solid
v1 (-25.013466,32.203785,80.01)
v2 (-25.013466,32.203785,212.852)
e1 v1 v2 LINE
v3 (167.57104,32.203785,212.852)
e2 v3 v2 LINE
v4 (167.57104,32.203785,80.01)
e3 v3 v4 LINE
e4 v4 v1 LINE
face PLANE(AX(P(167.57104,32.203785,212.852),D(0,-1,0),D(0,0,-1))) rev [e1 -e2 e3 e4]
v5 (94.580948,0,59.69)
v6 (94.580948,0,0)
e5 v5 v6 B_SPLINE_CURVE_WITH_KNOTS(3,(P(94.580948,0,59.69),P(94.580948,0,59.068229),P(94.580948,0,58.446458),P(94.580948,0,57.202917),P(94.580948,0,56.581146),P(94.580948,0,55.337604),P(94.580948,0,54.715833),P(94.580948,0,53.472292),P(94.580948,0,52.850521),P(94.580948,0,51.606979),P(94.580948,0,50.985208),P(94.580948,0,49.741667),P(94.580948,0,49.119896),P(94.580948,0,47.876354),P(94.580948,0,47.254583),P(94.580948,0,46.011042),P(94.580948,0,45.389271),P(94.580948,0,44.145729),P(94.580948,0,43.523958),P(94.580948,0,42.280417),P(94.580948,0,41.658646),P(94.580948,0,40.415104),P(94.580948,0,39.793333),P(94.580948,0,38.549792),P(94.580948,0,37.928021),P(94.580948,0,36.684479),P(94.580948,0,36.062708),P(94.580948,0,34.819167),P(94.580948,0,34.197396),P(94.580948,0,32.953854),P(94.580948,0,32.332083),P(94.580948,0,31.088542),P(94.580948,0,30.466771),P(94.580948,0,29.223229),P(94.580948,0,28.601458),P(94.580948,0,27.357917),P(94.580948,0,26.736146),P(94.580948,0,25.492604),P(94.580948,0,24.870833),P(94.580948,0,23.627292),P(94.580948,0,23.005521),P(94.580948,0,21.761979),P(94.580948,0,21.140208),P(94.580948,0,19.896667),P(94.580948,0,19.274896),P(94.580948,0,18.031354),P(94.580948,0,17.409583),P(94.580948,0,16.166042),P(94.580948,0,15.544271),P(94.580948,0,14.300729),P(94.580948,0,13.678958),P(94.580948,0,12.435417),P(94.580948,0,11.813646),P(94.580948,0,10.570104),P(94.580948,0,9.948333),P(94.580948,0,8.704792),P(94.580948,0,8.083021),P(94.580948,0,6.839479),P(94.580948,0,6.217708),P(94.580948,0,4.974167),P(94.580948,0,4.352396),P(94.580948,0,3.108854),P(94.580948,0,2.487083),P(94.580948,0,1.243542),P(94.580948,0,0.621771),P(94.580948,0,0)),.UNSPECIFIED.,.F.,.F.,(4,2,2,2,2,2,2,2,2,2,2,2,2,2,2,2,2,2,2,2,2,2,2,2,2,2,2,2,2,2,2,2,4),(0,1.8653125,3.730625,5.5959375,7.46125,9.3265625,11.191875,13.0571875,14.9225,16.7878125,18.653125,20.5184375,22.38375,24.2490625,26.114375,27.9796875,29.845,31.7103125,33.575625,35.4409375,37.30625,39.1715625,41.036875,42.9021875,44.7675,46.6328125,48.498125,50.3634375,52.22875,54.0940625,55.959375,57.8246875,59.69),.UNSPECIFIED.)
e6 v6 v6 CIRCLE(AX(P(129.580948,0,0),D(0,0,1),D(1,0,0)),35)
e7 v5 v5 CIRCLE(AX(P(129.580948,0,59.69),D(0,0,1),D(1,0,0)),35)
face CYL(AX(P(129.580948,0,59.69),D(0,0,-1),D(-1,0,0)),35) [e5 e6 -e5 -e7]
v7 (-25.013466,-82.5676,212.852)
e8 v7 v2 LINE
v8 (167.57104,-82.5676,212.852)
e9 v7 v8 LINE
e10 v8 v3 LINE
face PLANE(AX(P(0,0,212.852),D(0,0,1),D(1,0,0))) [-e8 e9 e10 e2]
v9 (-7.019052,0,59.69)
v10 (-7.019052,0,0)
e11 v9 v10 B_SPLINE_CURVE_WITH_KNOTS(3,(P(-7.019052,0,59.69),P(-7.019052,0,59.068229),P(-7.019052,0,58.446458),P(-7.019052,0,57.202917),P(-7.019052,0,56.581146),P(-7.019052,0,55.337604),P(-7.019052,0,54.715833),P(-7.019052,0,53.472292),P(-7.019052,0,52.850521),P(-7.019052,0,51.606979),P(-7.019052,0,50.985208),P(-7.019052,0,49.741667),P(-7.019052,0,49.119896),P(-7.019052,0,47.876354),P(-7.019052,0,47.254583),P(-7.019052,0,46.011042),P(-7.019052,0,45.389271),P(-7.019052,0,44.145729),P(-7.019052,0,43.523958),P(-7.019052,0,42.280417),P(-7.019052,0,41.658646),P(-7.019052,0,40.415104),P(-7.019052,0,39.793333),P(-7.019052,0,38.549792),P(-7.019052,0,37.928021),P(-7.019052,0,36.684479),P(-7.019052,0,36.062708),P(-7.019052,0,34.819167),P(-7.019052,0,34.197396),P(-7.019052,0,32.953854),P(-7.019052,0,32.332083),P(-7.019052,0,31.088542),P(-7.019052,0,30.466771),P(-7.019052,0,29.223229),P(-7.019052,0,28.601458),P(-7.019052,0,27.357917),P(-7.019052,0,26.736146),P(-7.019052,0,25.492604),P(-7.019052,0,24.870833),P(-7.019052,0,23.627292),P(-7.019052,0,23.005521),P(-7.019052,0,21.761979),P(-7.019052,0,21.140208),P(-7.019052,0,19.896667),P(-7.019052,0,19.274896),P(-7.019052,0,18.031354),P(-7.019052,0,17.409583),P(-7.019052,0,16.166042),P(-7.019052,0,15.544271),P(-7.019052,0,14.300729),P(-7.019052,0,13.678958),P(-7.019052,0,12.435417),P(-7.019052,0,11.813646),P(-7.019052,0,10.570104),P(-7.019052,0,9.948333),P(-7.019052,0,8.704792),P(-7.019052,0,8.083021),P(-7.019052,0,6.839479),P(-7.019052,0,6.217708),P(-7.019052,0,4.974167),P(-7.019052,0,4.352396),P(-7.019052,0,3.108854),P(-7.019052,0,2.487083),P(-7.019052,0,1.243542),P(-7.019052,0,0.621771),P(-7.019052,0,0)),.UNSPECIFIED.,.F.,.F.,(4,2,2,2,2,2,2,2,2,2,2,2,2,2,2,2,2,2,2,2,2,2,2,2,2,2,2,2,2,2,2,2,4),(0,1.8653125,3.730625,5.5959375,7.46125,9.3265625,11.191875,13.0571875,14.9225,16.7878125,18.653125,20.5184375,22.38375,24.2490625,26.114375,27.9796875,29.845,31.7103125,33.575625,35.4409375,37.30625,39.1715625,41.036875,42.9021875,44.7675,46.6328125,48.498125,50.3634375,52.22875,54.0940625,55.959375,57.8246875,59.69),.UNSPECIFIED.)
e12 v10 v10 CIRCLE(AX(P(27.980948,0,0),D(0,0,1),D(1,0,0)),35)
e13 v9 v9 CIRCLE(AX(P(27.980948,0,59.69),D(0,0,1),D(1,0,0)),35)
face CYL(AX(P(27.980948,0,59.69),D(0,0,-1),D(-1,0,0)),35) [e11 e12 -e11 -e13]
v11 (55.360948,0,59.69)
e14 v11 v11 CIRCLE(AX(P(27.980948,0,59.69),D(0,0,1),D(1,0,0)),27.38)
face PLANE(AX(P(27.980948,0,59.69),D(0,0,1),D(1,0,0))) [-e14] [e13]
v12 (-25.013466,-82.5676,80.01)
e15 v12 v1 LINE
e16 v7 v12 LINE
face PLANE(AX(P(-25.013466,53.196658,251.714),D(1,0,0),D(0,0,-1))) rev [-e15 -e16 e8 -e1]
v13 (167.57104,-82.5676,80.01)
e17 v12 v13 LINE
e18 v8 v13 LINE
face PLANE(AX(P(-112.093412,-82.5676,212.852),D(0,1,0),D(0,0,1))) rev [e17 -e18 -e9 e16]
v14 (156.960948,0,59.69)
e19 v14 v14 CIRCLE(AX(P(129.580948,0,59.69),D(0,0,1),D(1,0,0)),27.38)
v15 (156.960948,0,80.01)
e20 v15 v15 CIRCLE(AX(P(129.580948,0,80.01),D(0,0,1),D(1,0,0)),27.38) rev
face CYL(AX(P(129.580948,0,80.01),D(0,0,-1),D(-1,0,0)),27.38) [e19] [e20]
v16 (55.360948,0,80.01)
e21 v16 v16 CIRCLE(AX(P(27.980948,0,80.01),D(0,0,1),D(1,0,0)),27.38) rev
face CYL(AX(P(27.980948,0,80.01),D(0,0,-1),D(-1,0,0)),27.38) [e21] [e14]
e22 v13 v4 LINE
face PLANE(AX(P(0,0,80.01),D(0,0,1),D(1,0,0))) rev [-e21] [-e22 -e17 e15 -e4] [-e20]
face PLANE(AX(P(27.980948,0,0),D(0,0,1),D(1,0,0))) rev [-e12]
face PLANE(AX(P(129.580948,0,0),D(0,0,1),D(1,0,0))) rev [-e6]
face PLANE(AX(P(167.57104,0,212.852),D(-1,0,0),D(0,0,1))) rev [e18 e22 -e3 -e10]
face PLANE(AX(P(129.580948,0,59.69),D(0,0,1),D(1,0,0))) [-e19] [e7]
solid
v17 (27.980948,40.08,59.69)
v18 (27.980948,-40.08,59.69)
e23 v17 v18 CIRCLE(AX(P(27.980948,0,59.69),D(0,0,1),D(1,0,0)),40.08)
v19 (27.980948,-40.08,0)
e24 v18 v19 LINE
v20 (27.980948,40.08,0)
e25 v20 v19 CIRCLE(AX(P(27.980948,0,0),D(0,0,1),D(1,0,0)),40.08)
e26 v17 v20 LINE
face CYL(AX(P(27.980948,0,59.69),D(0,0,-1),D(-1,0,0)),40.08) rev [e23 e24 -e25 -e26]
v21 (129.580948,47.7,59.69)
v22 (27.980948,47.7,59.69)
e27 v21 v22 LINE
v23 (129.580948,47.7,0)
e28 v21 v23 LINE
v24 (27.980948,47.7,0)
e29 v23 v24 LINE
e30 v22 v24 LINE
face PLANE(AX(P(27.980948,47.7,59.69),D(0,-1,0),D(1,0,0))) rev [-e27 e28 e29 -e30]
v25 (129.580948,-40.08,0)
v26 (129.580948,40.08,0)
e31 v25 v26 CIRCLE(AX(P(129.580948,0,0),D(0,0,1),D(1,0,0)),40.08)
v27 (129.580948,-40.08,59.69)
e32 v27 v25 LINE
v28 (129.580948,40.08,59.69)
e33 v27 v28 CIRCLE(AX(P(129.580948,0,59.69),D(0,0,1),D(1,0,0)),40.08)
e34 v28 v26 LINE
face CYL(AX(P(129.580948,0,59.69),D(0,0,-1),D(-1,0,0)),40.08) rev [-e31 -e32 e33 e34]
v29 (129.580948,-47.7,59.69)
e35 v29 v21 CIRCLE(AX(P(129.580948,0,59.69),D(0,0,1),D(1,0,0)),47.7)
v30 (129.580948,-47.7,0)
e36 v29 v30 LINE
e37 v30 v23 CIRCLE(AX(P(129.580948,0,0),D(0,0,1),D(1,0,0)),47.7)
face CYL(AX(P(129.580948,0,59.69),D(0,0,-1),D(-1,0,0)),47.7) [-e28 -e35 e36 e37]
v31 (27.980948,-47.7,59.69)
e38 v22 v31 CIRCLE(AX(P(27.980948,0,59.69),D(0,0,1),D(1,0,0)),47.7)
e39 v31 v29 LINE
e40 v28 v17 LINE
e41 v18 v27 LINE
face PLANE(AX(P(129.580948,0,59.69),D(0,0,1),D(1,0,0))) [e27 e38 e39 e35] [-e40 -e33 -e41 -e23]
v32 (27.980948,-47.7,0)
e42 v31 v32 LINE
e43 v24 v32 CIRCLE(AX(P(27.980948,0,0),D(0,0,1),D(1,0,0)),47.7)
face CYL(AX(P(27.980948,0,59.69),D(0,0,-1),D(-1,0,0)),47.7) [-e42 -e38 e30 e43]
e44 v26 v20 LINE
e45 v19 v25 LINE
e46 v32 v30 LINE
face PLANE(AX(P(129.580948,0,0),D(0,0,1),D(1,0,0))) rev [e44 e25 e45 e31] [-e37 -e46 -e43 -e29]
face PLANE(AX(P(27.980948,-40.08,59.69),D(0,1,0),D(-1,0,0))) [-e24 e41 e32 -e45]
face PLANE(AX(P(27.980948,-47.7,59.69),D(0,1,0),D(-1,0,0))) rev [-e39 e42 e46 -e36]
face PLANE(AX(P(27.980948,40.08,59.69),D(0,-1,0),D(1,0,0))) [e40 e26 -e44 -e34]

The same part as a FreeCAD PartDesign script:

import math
import FreeCAD as App
import Part
import Sketcher
from FreeCAD import Vector
Q = App.Units.Quantity

doc = App.newDocument("Part")
body = doc.addObject("PartDesign::Body", "Body")

# Sketch on XY plane
sketch1 = body.newObject("Sketcher::SketchObject", "Sketch")
sketch1.AttachmentSupport = (doc.getObject("XY_Plane"), [""])
sketch1.MapMode = "FlatFace"
sketch1.addGeometry(Part.Circle(Vector(-74, 0, 0), Vector(0, 0, 1), 35), False)
sketch1.addConstraint([
    Sketcher.Constraint("PointOnObject", 0, 3, -1),
    Sketcher.Constraint("Diameter", 0, Q("70 mm")),
    Sketcher.Constraint("DistanceX", 0, 3, -1, 1, Q("73.619052 mm")),
])
pad1 = body.newObject("PartDesign::Pad", "Pad")
pad1.Profile = sketch1
pad1.Length = Q("2.35 in")
body2 = doc.addObject("PartDesign::Body", "Body001")

# Sketch on XY plane
sketch2 = body2.newObject("Sketcher::SketchObject", "Sketch001")
sketch2.AttachmentSupport = (doc.getObject("XY_Plane001"), [""])
sketch2.MapMode = "FlatFace"
sketch2.addGeometry(Part.Circle(Vector(28, 0, 0), Vector(0, 0, 1), 35), False)
sketch2.addConstraint([
    Sketcher.Constraint("PointOnObject", 0, 3, -1),
    Sketcher.Constraint("Diameter", 0, Q("70 mm")),
    Sketcher.Constraint("DistanceX", -1, 1, 0, 3, Q("27.980948 mm")),
])
pad2 = body2.newObject("PartDesign::Pad", "Pad001")
pad2.Profile = sketch2
pad2.Length = Q("2.35 in")
body3 = doc.addObject("PartDesign::Body", "Body002")

# Sketch on XY plane
sketch3 = body3.newObject("Sketcher::SketchObject", "Sketch002")
sketch3.AttachmentSupport = (doc.getObject("XY_Plane002"), [""])
sketch3.MapMode = "FlatFace"
sketch3.addGeometry(Part.Circle(Vector(130, 0, 0), Vector(0, 0, 1), 35), False)
sketch3.addConstraint([
    Sketcher.Constraint("PointOnObject", 0, 3, -1),
    Sketcher.Constraint("Diameter", 0, Q("70 mm")),
    Sketcher.Constraint("DistanceX", -1, 1, 0, 3, Q("129.580948 mm")),
])
pad3 = body3.newObject("PartDesign::Pad", "Pad002")
pad3.Profile = sketch3
pad3.Length = Q("2.35 in")
body4 = doc.addObject("PartDesign::Body", "Body003")

# Sketch on XY plane
sketch4 = body4.newObject("Sketcher::SketchObject", "Sketch003")
sketch4.AttachmentSupport = (doc.getObject("XY_Plane003"), [""])
sketch4.MapMode = "FlatFace"
sketch4.AttachmentOffset = App.Placement(Vector(0, 0, 1.175 * 25.4), App.Rotation())
sketch4.addGeometry([
    Part.LineSegment(Vector(130, 48, 0), Vector(28, 48, 0)),  # 0
    Part.ArcOfCircle(Part.Circle(Vector(28, 0, 0), Vector(0, 0, 1), 48), math.radians(90), math.radians(270)),  # 1
    Part.LineSegment(Vector(28, -48, 0), Vector(130, -48, 0)),  # 2
    Part.ArcOfCircle(Part.Circle(Vector(130, 0, 0), Vector(0, 0, 1), 48), math.radians(-90), math.radians(90)),  # 3
    Part.LineSegment(Vector(28, 40, 0), Vector(130, 40, 0)),  # 4
    Part.ArcOfCircle(Part.Circle(Vector(130, 0, 0), Vector(0, 0, 1), 40), math.radians(-90), math.radians(90)),  # 5
    Part.LineSegment(Vector(130, -40, 0), Vector(28, -40, 0)),  # 6
    Part.ArcOfCircle(Part.Circle(Vector(28, 0, 0), Vector(0, 0, 1), 40), math.radians(90), math.radians(270)),  # 7
], False)
sketch4.addConstraint([
    Sketcher.Constraint("Tangent", 0, 2, 1, 1),
    Sketcher.Constraint("Tangent", 1, 2, 2, 1),
    Sketcher.Constraint("Tangent", 2, 2, 3, 1),
    Sketcher.Constraint("Tangent", 3, 2, 0, 1),
    Sketcher.Constraint("Tangent", 4, 2, 5, 2),
    Sketcher.Constraint("Tangent", 5, 1, 6, 1),
    Sketcher.Constraint("Tangent", 6, 2, 7, 2),
    Sketcher.Constraint("Tangent", 7, 1, 4, 1),
    Sketcher.Constraint("Horizontal", 0),
    Sketcher.Constraint("Horizontal", 2),
    Sketcher.Constraint("Horizontal", 4),
    Sketcher.Constraint("Horizontal", 6),
    Sketcher.Constraint("Coincident", 5, 3, 3, 3),
    Sketcher.Constraint("PointOnObject", 1, 3, -1),
    Sketcher.Constraint("Vertical", 7, 3, 0, 2),
    Sketcher.Constraint("DistanceX", 0, 2, 0, 1, Q("4 in")),
    Sketcher.Constraint("DistanceY", 4, 2, 3, 2, Q("0.3 in")),
    Sketcher.Constraint("Radius", 1, Q("47.7 mm")),
    Sketcher.Constraint("DistanceX", -1, 1, 1, 3, Q("27.980948 mm")),
])
pad4 = body4.newObject("PartDesign::Pad", "Pad003")
pad4.Profile = sketch4
pad4.Length = Q("2.35 in")
pad4.Midplane = True
body.AllowCompound = True
doc.recompute()

boolean = body.newObject("PartDesign::Boolean", "Boolean")
boolean.Type = "Fuse"
boolean.addObjects([body2])
doc.recompute()

boolean2 = body.newObject("PartDesign::Boolean", "Boolean001")
boolean2.Type = "Fuse"
boolean2.addObjects([body3])

# Sketch on XY plane
sketch5 = body.newObject("Sketcher::SketchObject", "Sketch004")
sketch5.AttachmentSupport = (doc.getObject("XY_Plane"), [""])
sketch5.MapMode = "FlatFace"
sketch5.AttachmentOffset = App.Placement(Vector(0, 0, 2.35 * 25.4), App.Rotation())
sketch5.addGeometry([
    Part.Circle(Vector(130, 0, 0), Vector(0, 0, 1), 27),
    Part.Circle(Vector(-74, 0, 0), Vector(0, 0, 1), 27),
    Part.Circle(Vector(28, 0, 0), Vector(0, 0, 1), 27),
], False)
sketch5.addConstraint([
    Sketcher.Constraint("Equal", 0, 1),
    Sketcher.Constraint("Equal", 1, 2),
    Sketcher.Constraint("PointOnObject", 0, 3, -1),
    Sketcher.Constraint("PointOnObject", 1, 3, -1),
    Sketcher.Constraint("PointOnObject", 2, 3, -1),
    Sketcher.Constraint("DistanceX", 1, 3, 0, 3, Q("8 in")),
    Sketcher.Constraint("DistanceX", 1, 3, 2, 3, Q("4 in")),
    Sketcher.Constraint("Diameter", 0, Q("54.76 mm")),
    Sketcher.Constraint("DistanceX", -1, 1, 0, 3, Q("129.580948 mm")),
])
pad5 = body.newObject("PartDesign::Pad", "Pad004")
pad5.Profile = sketch5
pad5.Length = Q("0.8 in")

# Sketch on XY plane
sketch6 = body.newObject("Sketcher::SketchObject", "Sketch005")
sketch6.AttachmentSupport = (doc.getObject("XY_Plane"), [""])
sketch6.MapMode = "FlatFace"
sketch6.AttachmentOffset = App.Placement(Vector(0, 0, 3.15 * 25.4), App.Rotation())
sketch6.addGeometry([
    Part.LineSegment(Vector(-112, -83, 0), Vector(168, -83, 0)),
    Part.LineSegment(Vector(168, -83, 0), Vector(168, 32, 0)),
    Part.LineSegment(Vector(168, 32, 0), Vector(-112, 32, 0)),
    Part.LineSegment(Vector(-112, 32, 0), Vector(-112, -83, 0)),
], False)
sketch6.addConstraint([
    Sketcher.Constraint("Coincident", 0, 2, 1, 1),
    Sketcher.Constraint("Coincident", 1, 2, 2, 1),
    Sketcher.Constraint("Coincident", 2, 2, 3, 1),
    Sketcher.Constraint("Coincident", 3, 2, 0, 1),
    Sketcher.Constraint("Horizontal", 0),
    Sketcher.Constraint("Vertical", 1),
    Sketcher.Constraint("Horizontal", 2),
    Sketcher.Constraint("Vertical", 3),
    Sketcher.Constraint("DistanceX", 0, 1, 0, 2, Q("279.664452 mm")),
    Sketcher.Constraint("DistanceY", 0, 2, -1, 1, Q("82.5676 mm")),
    Sketcher.Constraint("DistanceY", 1, 1, 1, 2, Q("114.771385 mm")),
    Sketcher.Constraint("DistanceX", -1, 1, 0, 2, Q("167.57104 mm")),
])
pad6 = body.newObject("PartDesign::Pad", "Pad005")
pad6.Profile = sketch6
pad6.Length = Q("5.23 in")

# Sketch on XY plane
sketch7 = body.newObject("Sketcher::SketchObject", "Sketch006")
sketch7.AttachmentSupport = (doc.getObject("XY_Plane"), [""])
sketch7.MapMode = "FlatFace"
sketch7.addGeometry(Part.Circle(Vector(-74, 0, 0), Vector(0, 0, 1), 35), False)
sketch7.addConstraint([
    Sketcher.Constraint("PointOnObject", 0, 3, -1),
    Sketcher.Constraint("Diameter", 0, Q("70 mm")),
    Sketcher.Constraint("DistanceX", 0, 3, -1, 1, Q("73.619052 mm")),
])
pocket1 = body.newObject("PartDesign::Pocket", "Pocket")
pocket1.Profile = sketch7
pocket1.Length = Q("3.15 in")
pocket1.Reversed = True

# Sketch on XY plane
sketch8 = body.newObject("Sketcher::SketchObject", "Sketch007")
sketch8.AttachmentSupport = (doc.getObject("XY_Plane"), [""])
sketch8.MapMode = "FlatFace"
sketch8.AttachmentOffset = App.Placement(Vector(0, 0, 3.15 * 25.4), App.Rotation())
sketch8.addGeometry([
    Part.LineSegment(Vector(-25, 53, 0), Vector(-25, -112, 0)),
    Part.LineSegment(Vector(-25, -112, 0), Vector(-144, -112, 0)),
    Part.LineSegment(Vector(-144, -112, 0), Vector(-144, 53, 0)),
    Part.LineSegment(Vector(-144, 53, 0), Vector(-25, 53, 0)),
], False)
sketch8.addConstraint([
    Sketcher.Constraint("Coincident", 0, 2, 1, 1),
    Sketcher.Constraint("Coincident", 1, 2, 2, 1),
    Sketcher.Constraint("Coincident", 2, 2, 3, 1),
    Sketcher.Constraint("Coincident", 3, 2, 0, 1),
    Sketcher.Constraint("Vertical", 0),
    Sketcher.Constraint("Horizontal", 1),
    Sketcher.Constraint("Vertical", 2),
    Sketcher.Constraint("Horizontal", 3),
    Sketcher.Constraint("DistanceX", 1, 2, 1, 1, Q("119.203563 mm")),
    Sketcher.Constraint("DistanceY", 0, 2, 0, 1, Q("165.430142 mm")),
    Sketcher.Constraint("DistanceX", 1, 2, -1, 1, Q("144.217029 mm")),
    Sketcher.Constraint("DistanceY", 0, 2, -1, 1, Q("112.233484 mm")),
])
pocket2 = body.newObject("PartDesign::Pocket", "Pocket001")
pocket2.Profile = sketch8
pocket2.Length = Q("6.76 in")
pocket2.Reversed = True

doc.recompute()
